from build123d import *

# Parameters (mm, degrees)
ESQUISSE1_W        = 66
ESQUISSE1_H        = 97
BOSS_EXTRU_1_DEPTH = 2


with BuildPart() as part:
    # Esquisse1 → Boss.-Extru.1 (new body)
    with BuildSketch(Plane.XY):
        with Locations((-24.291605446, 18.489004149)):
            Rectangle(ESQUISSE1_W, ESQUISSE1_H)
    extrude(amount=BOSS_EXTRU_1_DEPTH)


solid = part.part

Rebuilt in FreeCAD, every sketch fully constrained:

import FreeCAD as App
import Part
import Sketcher
from FreeCAD import Vector
Q = App.Units.Quantity


def add_polygon(sketch, points):
    """Adds a closed chain of lines whose ends are joined by coincident constraints."""
    first, n = sketch.GeometryCount, len(points)
    for a, b in zip(points, points[1:] + points[:1]):
        sketch.addGeometry(Part.LineSegment(App.Vector(*a, 0), App.Vector(*b, 0)), False)
    for i in range(n):
        sketch.addConstraint(Sketcher.Constraint("Coincident", first + i, 2, first + (i + 1) % n, 1))

doc = App.newDocument("Part")
body = doc.addObject("PartDesign::Body", "Body")

# Sketch on XY plane
sketch1 = doc.addObject("Sketcher::SketchObject", "Sketch")
body.addObject(sketch1)
sketch1.AttachmentSupport = (doc.XY_Plane, [""])
sketch1.MapMode = "FlatFace"
add_polygon(sketch1, [(-57, 67), (-57, -30), (9, -30), (9, 67)])  # lines 0-3
sketch1.addConstraint([
    Sketcher.Constraint("Vertical", 0),
    Sketcher.Constraint("Horizontal", 1),
    Sketcher.Constraint("Vertical", 2),
    Sketcher.Constraint("Horizontal", 3),
    Sketcher.Constraint("DistanceX", 1, 1, 1, 2, Q("66 mm")),
    Sketcher.Constraint("DistanceY", 0, 2, 0, 1, Q("97 mm")),
    Sketcher.Constraint("DistanceX", 0, 2, -1, 1, Q("57.291605 mm")),
    Sketcher.Constraint("DistanceY", 0, 2, -1, 1, Q("30.010996 mm")),
])
pad1 = doc.addObject("PartDesign::Pad", "Pad")
body.addObject(pad1)
pad1.Profile = sketch1
pad1.Length = 2

doc.recompute()
